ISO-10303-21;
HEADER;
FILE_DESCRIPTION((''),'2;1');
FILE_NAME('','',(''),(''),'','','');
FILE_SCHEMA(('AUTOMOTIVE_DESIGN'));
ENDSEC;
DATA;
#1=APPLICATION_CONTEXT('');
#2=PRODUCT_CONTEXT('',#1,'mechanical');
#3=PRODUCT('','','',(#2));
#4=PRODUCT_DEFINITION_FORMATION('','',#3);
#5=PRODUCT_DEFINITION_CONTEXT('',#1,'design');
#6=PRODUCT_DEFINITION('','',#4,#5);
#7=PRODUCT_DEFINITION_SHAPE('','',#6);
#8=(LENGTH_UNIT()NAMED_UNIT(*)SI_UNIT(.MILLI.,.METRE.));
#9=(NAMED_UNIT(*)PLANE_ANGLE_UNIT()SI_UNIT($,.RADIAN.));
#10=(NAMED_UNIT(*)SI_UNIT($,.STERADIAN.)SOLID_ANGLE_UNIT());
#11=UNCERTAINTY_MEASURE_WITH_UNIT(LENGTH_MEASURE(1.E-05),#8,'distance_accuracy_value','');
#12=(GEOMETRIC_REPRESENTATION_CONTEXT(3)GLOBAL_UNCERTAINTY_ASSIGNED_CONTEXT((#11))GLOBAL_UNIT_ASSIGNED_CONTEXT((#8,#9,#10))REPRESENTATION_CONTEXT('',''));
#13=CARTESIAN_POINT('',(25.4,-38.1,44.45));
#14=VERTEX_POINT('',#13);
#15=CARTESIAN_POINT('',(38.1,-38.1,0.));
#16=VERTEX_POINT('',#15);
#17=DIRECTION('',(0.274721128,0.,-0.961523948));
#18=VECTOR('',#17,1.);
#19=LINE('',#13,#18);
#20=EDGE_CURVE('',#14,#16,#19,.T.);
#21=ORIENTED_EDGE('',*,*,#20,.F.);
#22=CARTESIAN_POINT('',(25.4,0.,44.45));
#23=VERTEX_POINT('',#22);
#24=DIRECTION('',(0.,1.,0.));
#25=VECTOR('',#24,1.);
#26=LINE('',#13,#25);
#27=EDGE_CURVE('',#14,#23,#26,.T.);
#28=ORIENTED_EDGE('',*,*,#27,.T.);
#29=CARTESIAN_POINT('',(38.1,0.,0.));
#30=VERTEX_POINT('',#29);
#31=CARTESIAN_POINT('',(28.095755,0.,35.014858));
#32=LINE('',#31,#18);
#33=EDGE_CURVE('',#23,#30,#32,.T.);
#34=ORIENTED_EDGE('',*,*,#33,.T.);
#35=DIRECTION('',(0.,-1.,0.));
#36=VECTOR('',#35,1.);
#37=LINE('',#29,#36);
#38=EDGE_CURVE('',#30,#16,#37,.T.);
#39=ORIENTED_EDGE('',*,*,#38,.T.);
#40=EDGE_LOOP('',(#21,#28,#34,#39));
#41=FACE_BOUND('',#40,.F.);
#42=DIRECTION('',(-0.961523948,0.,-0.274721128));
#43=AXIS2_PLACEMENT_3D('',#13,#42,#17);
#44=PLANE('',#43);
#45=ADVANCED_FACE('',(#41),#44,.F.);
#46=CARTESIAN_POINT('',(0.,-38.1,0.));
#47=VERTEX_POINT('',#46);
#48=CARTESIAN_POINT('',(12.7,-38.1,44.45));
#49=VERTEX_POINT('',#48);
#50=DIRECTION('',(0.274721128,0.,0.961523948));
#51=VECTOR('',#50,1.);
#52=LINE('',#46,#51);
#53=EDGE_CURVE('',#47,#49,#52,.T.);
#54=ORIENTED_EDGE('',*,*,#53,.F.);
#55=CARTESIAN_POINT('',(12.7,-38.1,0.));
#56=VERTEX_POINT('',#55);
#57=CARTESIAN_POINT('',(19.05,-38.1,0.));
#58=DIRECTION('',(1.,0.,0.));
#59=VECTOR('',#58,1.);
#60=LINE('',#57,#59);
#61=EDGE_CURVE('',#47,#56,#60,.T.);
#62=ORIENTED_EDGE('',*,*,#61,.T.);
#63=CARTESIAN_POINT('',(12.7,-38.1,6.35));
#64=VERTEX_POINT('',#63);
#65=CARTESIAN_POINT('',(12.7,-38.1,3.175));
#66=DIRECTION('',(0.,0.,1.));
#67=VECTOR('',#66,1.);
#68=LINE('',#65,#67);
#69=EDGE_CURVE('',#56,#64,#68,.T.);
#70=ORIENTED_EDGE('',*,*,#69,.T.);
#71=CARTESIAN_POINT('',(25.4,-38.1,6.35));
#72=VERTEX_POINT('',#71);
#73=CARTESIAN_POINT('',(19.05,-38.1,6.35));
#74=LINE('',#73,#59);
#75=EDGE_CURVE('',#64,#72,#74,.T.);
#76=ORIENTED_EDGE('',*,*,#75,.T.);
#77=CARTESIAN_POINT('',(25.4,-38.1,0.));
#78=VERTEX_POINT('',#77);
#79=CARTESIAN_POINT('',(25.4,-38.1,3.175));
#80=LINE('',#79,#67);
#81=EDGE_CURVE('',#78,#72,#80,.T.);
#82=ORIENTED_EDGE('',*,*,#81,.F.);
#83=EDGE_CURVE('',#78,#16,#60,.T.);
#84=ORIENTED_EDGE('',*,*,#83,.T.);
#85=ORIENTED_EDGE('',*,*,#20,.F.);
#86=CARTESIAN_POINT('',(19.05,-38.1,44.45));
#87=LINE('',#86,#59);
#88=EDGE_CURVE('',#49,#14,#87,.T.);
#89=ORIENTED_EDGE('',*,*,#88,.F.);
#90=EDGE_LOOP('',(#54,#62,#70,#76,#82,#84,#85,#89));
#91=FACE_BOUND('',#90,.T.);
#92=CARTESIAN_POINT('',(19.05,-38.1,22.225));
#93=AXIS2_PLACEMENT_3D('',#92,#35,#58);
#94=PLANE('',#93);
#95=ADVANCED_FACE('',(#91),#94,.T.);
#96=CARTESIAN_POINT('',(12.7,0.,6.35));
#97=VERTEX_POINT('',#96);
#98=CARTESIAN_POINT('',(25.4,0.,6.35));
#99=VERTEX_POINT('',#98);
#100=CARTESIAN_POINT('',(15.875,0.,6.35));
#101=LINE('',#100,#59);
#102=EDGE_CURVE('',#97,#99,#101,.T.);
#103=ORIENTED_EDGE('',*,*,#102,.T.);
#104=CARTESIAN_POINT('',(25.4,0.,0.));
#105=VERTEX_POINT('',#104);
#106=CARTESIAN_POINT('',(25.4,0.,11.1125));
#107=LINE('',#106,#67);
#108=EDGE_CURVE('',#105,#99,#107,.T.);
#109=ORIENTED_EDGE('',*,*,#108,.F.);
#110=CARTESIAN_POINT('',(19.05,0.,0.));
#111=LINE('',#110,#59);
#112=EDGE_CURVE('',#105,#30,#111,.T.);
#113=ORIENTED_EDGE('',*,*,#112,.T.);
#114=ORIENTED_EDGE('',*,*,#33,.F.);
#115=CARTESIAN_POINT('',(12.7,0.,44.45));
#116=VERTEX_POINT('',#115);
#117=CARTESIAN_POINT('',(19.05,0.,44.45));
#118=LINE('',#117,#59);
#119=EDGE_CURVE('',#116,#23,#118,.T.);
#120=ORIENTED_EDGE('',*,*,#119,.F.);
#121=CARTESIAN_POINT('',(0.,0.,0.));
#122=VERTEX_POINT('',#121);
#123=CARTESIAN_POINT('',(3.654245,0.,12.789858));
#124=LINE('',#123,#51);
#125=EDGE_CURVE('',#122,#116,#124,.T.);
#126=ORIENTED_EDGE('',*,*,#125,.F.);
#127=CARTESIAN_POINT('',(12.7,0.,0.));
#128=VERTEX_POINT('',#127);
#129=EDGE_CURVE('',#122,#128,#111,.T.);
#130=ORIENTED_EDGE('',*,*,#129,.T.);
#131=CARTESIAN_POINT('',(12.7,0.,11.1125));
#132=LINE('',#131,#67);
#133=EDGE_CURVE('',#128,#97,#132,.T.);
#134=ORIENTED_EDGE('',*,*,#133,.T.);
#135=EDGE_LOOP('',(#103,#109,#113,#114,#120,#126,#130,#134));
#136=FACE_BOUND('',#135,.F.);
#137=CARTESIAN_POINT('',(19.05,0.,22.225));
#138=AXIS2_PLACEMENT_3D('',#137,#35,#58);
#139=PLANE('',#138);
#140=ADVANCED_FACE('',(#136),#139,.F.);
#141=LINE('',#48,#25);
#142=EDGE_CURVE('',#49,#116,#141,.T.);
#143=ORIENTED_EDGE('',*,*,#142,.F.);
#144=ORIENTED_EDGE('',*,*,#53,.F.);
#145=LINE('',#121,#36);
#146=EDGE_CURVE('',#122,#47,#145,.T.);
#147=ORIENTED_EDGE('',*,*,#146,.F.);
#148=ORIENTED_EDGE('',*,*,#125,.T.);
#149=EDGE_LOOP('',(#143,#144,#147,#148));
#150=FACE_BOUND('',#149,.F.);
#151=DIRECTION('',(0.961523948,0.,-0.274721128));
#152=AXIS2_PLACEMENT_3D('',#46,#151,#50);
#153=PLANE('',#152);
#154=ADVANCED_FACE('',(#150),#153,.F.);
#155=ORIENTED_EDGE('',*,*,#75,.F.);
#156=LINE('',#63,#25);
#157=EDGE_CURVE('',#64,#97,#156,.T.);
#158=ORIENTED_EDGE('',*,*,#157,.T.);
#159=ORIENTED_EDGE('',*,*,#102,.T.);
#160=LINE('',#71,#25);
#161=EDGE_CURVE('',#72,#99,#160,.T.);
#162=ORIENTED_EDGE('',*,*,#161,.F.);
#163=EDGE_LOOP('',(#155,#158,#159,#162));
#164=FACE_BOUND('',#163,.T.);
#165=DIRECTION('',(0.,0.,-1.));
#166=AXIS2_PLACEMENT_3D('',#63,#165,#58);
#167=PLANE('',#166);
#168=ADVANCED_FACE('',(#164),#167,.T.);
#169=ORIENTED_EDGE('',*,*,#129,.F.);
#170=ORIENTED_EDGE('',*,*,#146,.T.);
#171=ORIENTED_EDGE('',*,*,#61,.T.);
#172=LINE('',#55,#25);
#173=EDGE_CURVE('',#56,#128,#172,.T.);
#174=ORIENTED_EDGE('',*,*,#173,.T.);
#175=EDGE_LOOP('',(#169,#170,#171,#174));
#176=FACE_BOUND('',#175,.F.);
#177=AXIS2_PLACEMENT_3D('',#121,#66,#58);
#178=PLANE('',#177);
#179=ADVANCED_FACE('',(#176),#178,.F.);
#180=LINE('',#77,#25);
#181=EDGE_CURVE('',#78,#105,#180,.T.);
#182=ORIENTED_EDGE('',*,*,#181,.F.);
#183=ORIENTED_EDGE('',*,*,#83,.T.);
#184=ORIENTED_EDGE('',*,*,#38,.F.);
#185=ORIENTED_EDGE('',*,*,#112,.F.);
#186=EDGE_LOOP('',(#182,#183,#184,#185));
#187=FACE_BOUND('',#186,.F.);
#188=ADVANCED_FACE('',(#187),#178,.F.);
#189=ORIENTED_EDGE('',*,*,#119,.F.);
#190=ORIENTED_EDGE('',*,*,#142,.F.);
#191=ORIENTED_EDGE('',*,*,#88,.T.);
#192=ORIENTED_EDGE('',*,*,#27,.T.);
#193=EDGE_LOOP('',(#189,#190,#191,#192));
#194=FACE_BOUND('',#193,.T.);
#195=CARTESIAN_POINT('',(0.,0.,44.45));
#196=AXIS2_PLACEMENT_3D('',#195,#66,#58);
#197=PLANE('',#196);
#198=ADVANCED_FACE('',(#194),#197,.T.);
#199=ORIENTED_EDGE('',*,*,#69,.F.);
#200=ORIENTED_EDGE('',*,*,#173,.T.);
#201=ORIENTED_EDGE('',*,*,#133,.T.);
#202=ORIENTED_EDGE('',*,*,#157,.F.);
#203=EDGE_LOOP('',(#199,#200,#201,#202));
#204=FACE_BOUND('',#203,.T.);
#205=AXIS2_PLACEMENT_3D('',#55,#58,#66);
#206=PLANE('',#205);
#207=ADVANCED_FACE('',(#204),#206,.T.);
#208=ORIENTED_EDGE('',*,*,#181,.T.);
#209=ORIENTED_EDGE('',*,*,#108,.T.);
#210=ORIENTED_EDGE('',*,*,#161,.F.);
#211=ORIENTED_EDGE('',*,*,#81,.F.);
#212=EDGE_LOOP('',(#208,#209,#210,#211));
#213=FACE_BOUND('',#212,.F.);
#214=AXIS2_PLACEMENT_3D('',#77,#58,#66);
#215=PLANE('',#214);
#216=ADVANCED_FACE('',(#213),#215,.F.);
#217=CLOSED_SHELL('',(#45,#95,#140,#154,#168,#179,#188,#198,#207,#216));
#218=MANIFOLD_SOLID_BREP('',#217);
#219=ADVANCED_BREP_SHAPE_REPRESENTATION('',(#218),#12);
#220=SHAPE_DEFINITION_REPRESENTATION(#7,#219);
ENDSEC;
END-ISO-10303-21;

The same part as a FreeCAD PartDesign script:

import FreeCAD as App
import Part
import Sketcher
from FreeCAD import Vector
Q = App.Units.Quantity


def add_polygon(sketch, points):
    """Adds a closed chain of lines whose ends are joined by coincident constraints."""
    first, n = sketch.GeometryCount, len(points)
    for a, b in zip(points, points[1:] + points[:1]):
        sketch.addGeometry(Part.LineSegment(App.Vector(*a, 0), App.Vector(*b, 0)), False)
    for i in range(n):
        sketch.addConstraint(Sketcher.Constraint("Coincident", first + i, 2, first + (i + 1) % n, 1))

doc = App.newDocument("Part")
params = doc.addObject("Spreadsheet::Sheet", "Params")
for row, (alias, value) in enumerate([
    ("sketch1_width", "1.5 in"),
    ("sketch1_height", "1.75 in"),
    ("pad1_length", "1.5 in"),
    ("sketch2_width", "0.5 in"),
    ("sketch2_height", "0.25 in"),
    ("pocket1_length", "2.58 in"),
    ("sketch3_width", "0.5 in"),
    ("sketch3_height", "1.75 in"),
    ("pocket2_length", "2.39 in"),
    ("sketch4_width", "0.5 in"),
    ("sketch4_height", "1.75 in"),
    ("pocket3_length", "2.39 in"),
], start=1):
    params.set(f"A{row}", alias)
    params.set(f"B{row}", "=" + value)
    params.setAlias(f"B{row}", alias)

body = doc.addObject("PartDesign::Body", "Body")

sketch1 = body.newObject("Sketcher::SketchObject", "Sketch")
sketch1.AttachmentSupport = (doc.getObject("XZ_Plane"), [""])
sketch1.MapMode = "FlatFace"
add_polygon(sketch1, [(0, 44), (0, 0), (38, 0), (38, 44)])
sketch1.addConstraint([
    Sketcher.Constraint("Vertical", 0),
    Sketcher.Constraint("Horizontal", 1),
    Sketcher.Constraint("Vertical", 2),
    Sketcher.Constraint("Horizontal", 3),
    Sketcher.Constraint("Coincident", 0, 2, -1, 1),
    Sketcher.Constraint("DistanceX", 1, 1, 1, 2, Q("1.5 in")),
    Sketcher.Constraint("DistanceY", 0, 2, 0, 1, Q("1.75 in")),
])
sketch1.setExpression("Constraints[9]", "Params.sketch1_width")
sketch1.setExpression("Constraints[10]", "Params.sketch1_height")
pad1 = body.newObject("PartDesign::Pad", "Pad")
pad1.Profile = sketch1
pad1.setExpression("Length", "Params.pad1_length")

sketch2 = body.newObject("Sketcher::SketchObject", "Sketch001")
sketch2.AttachmentSupport = (doc.getObject("XZ_Plane"), [""])
sketch2.MapMode = "FlatFace"
sketch2.AttachmentOffset = App.Placement(Vector(0, 0, 1.5 * 25.4), App.Rotation())
add_polygon(sketch2, [(13, 6), (13, 0), (25, 0), (25, 6)])
sketch2.addConstraint([
    Sketcher.Constraint("Vertical", 0),
    Sketcher.Constraint("Horizontal", 1),
    Sketcher.Constraint("Vertical", 2),
    Sketcher.Constraint("Horizontal", 3),
    Sketcher.Constraint("PointOnObject", 0, 2, -1),
    Sketcher.Constraint("DistanceX", 1, 1, 1, 2, Q("0.5 in")),
    Sketcher.Constraint("DistanceX", -1, 1, 1, 2, Q("1 in")),
    Sketcher.Constraint("DistanceY", 0, 2, 0, 1, Q("0.25 in")),
])
sketch2.setExpression("Constraints[9]", "Params.sketch2_width")
sketch2.setExpression("Constraints[11]", "Params.sketch2_height")
pocket1 = body.newObject("PartDesign::Pocket", "Pocket")
pocket1.Profile = sketch2
pocket1.setExpression("Length", "Params.pocket1_length")

sketch3 = body.newObject("Sketcher::SketchObject", "Sketch002")
sketch3.AttachmentSupport = (doc.getObject("XZ_Plane"), [""])
sketch3.MapMode = "FlatFace"
sketch3.AttachmentOffset = App.Placement(Vector(0, 0, 1.5 * 25.4), App.Rotation())
add_polygon(sketch3, [(0, 0), (13, 44), (0, 44)])
sketch3.addConstraint([
    Sketcher.Constraint("Horizontal", 1),
    Sketcher.Constraint("Vertical", 2),
    Sketcher.Constraint("Coincident", 2, 2, -1, 1),
    Sketcher.Constraint("DistanceX", 1, 2, 1, 1, Q("0.5 in")),
    Sketcher.Constraint("DistanceY", 2, 2, 2, 1, Q("1.75 in")),
])
sketch3.setExpression("Constraints[6]", "Params.sketch3_width")
sketch3.setExpression("Constraints[7]", "Params.sketch3_height")
pocket2 = body.newObject("PartDesign::Pocket", "Pocket001")
pocket2.Profile = sketch3
pocket2.setExpression("Length", "Params.pocket2_length")

sketch4 = body.newObject("Sketcher::SketchObject", "Sketch003")
sketch4.AttachmentSupport = (doc.getObject("XZ_Plane"), [""])
sketch4.MapMode = "FlatFace"
sketch4.AttachmentOffset = App.Placement(Vector(0, 0, 1.5 * 25.4), App.Rotation())
add_polygon(sketch4, [(38, 44), (25, 44), (38, 0)])
sketch4.addConstraint([
    Sketcher.Constraint("Horizontal", 0),
    Sketcher.Constraint("Vertical", 2),
    Sketcher.Constraint("PointOnObject", 1, 2, -1),
    Sketcher.Constraint("DistanceX", 0, 2, 0, 1, Q("0.5 in")),
    Sketcher.Constraint("DistanceX", -1, 1, 0, 2, Q("1 in")),
    Sketcher.Constraint("DistanceY", 2, 1, 2, 2, Q("1.75 in")),
])
sketch4.setExpression("Constraints[6]", "Params.sketch4_width")
sketch4.setExpression("Constraints[8]", "Params.sketch4_height")
pocket3 = body.newObject("PartDesign::Pocket", "Pocket002")
pocket3.Profile = sketch4
pocket3.setExpression("Length", "Params.pocket3_length")

doc.recompute()
